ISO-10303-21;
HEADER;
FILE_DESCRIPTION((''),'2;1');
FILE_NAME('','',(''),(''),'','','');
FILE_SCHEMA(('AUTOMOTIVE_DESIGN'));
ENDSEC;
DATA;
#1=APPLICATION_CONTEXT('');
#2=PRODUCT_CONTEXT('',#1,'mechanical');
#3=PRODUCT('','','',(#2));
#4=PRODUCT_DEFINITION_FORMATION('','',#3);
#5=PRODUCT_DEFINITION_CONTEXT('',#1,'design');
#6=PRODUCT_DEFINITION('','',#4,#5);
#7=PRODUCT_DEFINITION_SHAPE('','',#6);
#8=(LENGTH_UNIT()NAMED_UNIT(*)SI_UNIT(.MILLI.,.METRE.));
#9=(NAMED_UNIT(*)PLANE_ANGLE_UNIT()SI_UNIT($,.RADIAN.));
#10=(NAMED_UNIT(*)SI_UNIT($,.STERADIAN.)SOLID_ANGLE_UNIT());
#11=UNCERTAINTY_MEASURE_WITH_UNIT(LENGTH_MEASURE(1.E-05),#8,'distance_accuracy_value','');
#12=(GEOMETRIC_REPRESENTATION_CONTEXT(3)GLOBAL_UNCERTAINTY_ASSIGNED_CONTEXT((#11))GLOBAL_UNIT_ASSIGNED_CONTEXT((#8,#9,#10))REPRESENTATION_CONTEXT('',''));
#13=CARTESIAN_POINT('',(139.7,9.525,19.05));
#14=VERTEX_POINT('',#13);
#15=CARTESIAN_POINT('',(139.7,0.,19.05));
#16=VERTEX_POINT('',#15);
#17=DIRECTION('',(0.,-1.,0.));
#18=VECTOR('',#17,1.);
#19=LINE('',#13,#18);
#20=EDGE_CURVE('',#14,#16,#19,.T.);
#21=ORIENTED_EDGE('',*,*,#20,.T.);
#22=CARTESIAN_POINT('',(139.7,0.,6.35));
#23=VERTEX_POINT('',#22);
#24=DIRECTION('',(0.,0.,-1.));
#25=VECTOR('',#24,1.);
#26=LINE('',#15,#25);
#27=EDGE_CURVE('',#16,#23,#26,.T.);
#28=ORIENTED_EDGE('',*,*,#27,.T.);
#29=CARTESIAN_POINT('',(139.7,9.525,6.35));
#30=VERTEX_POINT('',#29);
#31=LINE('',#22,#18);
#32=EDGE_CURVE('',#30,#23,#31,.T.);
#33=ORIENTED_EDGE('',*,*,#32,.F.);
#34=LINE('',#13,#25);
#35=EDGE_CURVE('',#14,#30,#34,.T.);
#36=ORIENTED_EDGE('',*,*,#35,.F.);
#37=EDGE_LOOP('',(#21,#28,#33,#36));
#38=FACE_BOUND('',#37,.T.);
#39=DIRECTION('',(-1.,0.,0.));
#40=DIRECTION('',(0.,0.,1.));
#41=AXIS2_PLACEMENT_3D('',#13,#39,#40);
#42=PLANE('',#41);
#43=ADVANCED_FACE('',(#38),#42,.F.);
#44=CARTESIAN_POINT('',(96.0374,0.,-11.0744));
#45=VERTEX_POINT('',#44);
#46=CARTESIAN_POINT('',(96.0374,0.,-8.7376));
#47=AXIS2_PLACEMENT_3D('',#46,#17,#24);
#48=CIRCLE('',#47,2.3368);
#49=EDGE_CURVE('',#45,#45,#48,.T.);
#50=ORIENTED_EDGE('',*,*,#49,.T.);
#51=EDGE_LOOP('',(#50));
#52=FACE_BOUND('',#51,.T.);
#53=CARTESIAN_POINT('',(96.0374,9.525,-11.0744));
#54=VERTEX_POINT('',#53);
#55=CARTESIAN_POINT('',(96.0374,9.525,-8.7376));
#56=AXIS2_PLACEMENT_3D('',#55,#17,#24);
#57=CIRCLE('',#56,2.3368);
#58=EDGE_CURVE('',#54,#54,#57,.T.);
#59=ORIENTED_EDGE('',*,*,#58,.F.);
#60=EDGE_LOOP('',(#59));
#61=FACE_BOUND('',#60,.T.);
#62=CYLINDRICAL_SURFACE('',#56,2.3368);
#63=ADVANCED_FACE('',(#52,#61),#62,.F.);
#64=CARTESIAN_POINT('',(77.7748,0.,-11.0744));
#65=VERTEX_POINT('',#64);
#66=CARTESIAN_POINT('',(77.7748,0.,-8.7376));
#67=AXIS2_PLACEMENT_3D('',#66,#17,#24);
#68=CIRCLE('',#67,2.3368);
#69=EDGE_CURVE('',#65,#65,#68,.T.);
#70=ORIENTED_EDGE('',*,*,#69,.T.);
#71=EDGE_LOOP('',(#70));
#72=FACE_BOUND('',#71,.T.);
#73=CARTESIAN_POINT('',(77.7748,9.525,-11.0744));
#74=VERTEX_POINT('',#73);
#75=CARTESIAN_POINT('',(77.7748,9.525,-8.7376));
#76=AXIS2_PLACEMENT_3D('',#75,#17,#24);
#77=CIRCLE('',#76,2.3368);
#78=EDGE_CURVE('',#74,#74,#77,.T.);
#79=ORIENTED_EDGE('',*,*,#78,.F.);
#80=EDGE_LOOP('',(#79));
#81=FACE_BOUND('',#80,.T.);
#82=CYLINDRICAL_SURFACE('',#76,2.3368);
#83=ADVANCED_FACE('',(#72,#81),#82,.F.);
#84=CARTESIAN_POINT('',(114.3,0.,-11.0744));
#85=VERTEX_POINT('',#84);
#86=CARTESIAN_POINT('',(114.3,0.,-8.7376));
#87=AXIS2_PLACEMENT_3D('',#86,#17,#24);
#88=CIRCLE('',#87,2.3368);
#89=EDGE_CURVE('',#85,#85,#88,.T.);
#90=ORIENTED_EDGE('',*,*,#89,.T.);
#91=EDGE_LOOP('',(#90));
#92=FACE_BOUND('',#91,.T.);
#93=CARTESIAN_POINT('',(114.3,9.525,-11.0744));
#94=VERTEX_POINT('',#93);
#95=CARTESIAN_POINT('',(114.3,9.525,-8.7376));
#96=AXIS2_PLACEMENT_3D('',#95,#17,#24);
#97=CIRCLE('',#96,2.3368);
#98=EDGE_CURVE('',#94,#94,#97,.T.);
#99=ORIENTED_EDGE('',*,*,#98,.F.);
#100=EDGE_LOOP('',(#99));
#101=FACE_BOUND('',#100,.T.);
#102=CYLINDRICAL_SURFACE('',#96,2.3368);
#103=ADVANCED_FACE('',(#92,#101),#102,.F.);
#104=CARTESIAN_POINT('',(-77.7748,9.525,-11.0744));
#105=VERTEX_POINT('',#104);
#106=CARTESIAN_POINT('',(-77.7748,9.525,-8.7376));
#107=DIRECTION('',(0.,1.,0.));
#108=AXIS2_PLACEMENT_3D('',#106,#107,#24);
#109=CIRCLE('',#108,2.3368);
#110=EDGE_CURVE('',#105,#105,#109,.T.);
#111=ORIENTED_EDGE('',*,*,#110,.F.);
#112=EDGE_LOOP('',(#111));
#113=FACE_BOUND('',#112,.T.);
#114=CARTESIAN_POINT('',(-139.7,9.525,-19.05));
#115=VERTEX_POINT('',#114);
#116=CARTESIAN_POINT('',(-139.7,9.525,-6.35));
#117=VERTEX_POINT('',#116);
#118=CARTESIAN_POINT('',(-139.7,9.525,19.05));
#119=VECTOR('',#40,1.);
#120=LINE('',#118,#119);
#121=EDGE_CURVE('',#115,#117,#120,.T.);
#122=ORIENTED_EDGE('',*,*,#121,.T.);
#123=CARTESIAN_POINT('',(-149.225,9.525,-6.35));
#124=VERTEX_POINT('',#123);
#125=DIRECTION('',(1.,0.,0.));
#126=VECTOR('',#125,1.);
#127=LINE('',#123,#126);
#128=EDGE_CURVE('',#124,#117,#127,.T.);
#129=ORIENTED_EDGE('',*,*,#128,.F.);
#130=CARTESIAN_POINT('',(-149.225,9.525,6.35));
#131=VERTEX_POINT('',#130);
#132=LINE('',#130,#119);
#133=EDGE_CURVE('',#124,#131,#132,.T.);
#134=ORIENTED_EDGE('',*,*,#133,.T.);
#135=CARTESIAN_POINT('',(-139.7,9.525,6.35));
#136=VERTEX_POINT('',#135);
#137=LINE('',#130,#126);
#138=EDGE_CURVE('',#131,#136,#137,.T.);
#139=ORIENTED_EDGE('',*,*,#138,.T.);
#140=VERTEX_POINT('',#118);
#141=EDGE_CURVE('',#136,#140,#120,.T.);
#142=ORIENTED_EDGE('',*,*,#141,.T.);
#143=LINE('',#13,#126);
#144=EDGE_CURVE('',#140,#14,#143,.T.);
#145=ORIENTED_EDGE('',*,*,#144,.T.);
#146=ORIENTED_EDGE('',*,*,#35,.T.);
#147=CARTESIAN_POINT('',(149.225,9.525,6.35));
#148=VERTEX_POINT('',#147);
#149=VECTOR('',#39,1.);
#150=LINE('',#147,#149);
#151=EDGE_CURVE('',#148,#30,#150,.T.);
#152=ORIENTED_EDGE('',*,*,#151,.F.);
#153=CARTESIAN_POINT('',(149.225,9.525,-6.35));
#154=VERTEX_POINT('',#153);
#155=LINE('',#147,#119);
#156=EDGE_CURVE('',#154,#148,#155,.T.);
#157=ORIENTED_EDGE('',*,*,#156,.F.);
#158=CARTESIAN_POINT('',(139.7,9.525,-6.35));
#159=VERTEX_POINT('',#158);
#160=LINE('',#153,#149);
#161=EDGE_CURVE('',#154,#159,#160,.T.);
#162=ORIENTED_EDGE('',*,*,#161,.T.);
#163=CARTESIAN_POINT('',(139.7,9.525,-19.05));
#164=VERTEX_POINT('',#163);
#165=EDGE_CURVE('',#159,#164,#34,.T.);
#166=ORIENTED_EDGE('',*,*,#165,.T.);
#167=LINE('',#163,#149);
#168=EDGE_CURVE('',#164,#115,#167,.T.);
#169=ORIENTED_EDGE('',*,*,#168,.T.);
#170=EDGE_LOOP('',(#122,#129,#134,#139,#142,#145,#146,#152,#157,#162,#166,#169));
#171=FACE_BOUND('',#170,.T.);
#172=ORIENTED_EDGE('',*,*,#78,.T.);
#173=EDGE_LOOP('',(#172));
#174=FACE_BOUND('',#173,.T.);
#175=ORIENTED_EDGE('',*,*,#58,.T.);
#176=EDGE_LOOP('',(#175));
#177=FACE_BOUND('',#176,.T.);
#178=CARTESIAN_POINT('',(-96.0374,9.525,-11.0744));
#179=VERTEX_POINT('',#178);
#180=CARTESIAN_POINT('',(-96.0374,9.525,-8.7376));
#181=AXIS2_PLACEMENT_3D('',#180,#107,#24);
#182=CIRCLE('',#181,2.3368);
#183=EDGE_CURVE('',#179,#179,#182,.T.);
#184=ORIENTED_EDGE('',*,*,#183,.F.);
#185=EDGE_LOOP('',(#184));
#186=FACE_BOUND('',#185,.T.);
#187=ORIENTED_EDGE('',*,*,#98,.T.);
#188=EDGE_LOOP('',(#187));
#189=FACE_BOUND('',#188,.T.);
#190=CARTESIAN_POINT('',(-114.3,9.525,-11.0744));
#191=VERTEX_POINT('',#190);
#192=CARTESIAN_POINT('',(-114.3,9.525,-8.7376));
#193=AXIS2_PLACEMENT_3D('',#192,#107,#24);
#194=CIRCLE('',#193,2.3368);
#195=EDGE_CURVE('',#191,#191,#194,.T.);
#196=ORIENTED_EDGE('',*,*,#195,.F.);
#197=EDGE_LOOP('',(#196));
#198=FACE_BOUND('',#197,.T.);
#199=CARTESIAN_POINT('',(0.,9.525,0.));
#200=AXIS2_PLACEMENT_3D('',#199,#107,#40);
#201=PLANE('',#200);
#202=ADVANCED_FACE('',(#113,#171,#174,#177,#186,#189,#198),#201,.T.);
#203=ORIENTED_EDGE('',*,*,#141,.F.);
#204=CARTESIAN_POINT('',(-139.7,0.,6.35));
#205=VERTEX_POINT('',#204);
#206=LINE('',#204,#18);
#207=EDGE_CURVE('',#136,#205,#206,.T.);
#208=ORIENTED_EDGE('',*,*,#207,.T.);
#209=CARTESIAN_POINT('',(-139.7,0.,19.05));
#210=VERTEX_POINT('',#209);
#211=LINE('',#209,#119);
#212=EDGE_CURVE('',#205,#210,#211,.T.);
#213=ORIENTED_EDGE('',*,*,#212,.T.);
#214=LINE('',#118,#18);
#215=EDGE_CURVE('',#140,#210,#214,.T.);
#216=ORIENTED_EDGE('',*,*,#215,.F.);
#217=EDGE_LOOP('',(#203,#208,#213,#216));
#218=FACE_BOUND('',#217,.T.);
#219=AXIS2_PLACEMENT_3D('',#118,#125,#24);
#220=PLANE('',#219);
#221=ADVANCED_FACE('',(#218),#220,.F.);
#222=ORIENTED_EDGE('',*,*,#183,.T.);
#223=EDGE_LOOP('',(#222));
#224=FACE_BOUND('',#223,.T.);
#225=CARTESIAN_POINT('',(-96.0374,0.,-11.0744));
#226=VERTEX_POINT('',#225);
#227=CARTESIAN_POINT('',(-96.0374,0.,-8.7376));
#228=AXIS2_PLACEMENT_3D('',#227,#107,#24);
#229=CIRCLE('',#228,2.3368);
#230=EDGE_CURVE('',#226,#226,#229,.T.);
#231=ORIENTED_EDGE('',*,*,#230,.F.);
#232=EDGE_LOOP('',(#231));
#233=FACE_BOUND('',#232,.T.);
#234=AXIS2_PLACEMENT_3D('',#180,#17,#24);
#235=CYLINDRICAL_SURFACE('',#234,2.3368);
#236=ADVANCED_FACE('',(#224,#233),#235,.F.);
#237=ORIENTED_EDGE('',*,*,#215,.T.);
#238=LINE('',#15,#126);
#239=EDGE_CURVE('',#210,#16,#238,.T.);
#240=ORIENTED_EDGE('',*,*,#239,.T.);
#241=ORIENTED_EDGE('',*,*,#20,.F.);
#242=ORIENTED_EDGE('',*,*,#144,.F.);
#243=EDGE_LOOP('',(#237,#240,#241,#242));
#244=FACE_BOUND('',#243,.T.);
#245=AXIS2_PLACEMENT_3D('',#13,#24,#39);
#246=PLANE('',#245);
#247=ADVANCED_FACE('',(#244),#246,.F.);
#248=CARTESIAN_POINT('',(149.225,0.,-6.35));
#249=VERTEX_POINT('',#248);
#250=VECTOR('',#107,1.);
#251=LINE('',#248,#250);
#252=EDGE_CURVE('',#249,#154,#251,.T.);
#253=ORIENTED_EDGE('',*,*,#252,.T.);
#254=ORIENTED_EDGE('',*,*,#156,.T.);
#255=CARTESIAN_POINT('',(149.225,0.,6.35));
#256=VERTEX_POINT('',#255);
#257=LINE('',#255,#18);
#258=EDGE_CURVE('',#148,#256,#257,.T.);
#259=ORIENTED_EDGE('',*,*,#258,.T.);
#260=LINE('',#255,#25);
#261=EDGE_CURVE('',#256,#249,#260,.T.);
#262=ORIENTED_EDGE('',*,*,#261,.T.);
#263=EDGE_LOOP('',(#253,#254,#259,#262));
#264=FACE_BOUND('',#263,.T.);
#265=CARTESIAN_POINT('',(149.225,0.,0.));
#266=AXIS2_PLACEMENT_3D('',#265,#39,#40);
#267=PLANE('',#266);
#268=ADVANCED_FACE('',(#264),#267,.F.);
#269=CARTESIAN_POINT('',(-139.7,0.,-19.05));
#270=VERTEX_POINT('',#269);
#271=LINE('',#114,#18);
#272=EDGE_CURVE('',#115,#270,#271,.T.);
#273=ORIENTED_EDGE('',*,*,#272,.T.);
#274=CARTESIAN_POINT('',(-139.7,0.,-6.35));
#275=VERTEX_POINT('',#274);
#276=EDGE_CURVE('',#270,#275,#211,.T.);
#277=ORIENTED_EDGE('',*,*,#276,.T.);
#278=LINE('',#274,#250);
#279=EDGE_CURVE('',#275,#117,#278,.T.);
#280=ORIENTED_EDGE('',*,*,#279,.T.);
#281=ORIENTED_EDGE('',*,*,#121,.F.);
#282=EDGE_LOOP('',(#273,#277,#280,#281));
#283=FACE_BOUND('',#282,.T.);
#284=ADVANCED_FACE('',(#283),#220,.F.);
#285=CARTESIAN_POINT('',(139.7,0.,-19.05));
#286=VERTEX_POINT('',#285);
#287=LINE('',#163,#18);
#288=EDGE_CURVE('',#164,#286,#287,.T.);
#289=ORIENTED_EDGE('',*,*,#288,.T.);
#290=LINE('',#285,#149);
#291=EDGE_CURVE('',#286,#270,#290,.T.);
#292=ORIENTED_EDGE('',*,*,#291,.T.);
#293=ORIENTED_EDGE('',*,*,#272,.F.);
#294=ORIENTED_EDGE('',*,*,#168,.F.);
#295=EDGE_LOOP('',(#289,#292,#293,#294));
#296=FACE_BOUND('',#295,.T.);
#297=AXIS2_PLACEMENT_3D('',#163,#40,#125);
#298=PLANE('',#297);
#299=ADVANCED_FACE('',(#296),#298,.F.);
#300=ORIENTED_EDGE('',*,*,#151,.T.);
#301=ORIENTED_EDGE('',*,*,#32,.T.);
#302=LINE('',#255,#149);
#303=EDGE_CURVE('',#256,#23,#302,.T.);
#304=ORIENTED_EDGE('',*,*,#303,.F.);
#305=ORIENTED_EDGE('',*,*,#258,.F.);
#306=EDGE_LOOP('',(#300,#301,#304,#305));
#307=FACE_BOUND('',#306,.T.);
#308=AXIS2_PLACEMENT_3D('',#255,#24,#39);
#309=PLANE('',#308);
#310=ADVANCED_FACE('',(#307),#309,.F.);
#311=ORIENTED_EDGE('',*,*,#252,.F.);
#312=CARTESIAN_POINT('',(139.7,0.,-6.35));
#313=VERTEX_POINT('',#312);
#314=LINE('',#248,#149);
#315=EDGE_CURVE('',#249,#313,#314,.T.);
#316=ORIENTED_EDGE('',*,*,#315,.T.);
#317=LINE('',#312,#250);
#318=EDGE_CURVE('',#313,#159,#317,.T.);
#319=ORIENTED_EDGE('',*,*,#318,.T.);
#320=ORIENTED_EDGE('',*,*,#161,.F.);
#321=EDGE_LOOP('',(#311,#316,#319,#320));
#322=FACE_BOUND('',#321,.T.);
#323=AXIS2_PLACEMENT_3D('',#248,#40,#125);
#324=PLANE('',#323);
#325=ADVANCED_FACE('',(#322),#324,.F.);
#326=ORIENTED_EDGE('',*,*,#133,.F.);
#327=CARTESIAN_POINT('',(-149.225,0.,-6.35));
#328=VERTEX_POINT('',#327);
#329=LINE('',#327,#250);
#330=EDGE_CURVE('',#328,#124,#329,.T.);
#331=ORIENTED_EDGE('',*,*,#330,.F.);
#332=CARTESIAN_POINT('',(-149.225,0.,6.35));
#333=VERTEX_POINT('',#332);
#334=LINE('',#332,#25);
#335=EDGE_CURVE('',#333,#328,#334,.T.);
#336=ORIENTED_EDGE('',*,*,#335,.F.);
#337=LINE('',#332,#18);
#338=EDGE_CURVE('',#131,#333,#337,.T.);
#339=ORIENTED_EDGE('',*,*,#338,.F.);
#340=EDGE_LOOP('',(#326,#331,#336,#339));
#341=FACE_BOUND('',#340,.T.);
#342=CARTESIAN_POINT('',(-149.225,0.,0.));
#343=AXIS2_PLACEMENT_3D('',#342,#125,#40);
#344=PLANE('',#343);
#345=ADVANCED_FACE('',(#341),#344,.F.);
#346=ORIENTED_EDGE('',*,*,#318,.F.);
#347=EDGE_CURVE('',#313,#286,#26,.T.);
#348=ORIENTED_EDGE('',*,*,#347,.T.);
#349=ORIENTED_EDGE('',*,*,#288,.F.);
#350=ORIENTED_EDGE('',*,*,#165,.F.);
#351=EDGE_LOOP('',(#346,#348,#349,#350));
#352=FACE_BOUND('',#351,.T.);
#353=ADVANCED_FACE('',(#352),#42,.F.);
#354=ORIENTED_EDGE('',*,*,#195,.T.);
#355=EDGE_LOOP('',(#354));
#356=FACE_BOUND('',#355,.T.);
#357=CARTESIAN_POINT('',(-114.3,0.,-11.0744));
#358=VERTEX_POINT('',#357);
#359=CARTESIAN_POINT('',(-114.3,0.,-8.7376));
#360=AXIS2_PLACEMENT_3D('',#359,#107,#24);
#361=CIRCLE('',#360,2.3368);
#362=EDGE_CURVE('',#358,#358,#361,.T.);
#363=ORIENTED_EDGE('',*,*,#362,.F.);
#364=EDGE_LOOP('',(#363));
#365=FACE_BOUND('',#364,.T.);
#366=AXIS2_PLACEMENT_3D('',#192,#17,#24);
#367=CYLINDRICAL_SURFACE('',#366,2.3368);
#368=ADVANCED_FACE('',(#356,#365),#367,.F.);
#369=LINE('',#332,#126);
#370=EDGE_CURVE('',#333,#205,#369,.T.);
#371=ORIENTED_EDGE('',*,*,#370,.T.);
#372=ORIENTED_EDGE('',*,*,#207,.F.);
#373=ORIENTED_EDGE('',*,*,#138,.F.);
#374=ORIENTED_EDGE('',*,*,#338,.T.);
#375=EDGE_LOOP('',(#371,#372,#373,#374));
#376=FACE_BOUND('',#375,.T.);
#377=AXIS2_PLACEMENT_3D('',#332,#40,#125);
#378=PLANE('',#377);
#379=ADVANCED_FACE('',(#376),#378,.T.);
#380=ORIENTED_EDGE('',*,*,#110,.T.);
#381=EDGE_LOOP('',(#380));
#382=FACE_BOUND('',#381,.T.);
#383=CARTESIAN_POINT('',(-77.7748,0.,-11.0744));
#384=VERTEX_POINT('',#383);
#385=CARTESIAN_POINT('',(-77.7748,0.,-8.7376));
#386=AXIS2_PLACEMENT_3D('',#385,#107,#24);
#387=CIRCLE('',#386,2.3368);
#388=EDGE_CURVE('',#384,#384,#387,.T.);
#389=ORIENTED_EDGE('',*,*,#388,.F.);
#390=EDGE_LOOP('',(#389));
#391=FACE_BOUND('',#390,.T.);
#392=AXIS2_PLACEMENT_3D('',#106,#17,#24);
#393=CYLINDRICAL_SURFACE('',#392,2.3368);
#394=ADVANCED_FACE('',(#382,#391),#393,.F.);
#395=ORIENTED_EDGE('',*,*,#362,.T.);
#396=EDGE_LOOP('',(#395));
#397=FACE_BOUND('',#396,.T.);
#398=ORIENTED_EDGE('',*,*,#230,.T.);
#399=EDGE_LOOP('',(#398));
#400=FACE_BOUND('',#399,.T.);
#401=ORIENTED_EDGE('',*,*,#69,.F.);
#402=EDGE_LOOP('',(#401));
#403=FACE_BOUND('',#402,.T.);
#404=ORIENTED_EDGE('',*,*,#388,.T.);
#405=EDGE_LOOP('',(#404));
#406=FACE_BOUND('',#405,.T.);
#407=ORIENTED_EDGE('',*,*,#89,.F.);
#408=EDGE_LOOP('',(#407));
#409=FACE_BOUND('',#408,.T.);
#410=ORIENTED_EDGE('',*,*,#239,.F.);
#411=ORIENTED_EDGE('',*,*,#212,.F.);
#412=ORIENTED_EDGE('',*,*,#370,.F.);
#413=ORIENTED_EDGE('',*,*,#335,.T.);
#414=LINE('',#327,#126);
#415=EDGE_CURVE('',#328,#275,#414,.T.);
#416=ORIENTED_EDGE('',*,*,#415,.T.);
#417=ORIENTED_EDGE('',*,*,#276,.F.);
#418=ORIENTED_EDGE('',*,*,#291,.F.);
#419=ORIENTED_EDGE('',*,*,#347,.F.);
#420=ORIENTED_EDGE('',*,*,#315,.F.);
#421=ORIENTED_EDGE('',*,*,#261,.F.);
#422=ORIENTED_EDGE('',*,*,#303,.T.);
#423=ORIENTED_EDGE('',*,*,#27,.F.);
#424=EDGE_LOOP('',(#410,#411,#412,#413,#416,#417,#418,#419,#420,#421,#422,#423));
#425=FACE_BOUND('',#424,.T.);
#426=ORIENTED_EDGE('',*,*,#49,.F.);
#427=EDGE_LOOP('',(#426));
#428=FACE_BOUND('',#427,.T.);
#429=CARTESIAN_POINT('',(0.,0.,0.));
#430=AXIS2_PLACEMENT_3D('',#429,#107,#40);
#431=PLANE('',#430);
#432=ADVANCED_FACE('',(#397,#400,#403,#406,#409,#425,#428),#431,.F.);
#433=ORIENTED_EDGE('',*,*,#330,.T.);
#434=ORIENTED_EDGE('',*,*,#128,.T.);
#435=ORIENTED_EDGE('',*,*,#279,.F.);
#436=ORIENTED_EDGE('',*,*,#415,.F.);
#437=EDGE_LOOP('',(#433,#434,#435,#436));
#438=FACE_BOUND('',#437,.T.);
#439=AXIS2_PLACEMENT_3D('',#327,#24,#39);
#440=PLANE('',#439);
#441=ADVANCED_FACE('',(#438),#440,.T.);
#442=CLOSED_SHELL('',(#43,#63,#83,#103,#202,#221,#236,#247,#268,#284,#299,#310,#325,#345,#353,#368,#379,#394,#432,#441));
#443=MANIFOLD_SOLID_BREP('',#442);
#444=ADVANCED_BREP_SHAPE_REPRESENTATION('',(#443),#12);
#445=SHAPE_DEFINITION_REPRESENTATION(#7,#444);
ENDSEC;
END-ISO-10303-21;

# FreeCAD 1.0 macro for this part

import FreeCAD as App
import Part
import Sketcher
Q = App.Units.Quantity

doc = App.newDocument("Part")
params = doc.addObject("Spreadsheet::Sheet", "Params")
for row, (alias, value) in enumerate([
    ("sketch1_width", "11 in"),
    ("sketch1_height", "1.5 in"),
    ("pad1_length", "0.375 in"),
    ("sketch2_height", "0.5 in"),
    ("sketch2_width", "0.375 in"),
    ("pad2_length", "0.375 in"),
    ("sketch3_diameter", "0.184 in"),
], start=1):
    params.set(f"A{row}", alias)
    params.set(f"B{row}", "=" + value)
    params.setAlias(f"B{row}", alias)

body = doc.addObject("PartDesign::Body", "Body")

# Sketch on XZ plane
sketch1 = doc.addObject("Sketcher::SketchObject", "Sketch")
body.addObject(sketch1)
sketch1.AttachmentSupport = (doc.XZ_Plane, [""])
sketch1.MapMode = "FlatFace"
sketch1.addGeometry(Part.LineSegment(App.Vector(-140, -19, 0), App.Vector(-140, 19, 0)), False)
sketch1.addGeometry(Part.LineSegment(App.Vector(-140, 19, 0), App.Vector(140, 19, 0)), False)
sketch1.addGeometry(Part.LineSegment(App.Vector(140, 19, 0), App.Vector(140, -19, 0)), False)
sketch1.addGeometry(Part.LineSegment(App.Vector(140, -19, 0), App.Vector(-140, -19, 0)), False)
sketch1.addConstraint(Sketcher.Constraint("Coincident", 0, 2, 1, 1))
sketch1.addConstraint(Sketcher.Constraint("Coincident", 1, 2, 2, 1))
sketch1.addConstraint(Sketcher.Constraint("Coincident", 2, 2, 3, 1))
sketch1.addConstraint(Sketcher.Constraint("Coincident", 3, 2, 0, 1))
sketch1.addConstraint(Sketcher.Constraint("Vertical", 0))
sketch1.addConstraint(Sketcher.Constraint("Horizontal", 1))
sketch1.addConstraint(Sketcher.Constraint("Vertical", 2))
sketch1.addConstraint(Sketcher.Constraint("Horizontal", 3))
sketch1.addConstraint(Sketcher.Constraint("Symmetric", 0, 2, 2, 2, -1, 1))
sketch1.addConstraint(Sketcher.Constraint("DistanceX", 1, 1, 1, 2, Q("11 in")))
sketch1.addConstraint(Sketcher.Constraint("DistanceY", 0, 1, 0, 2, Q("1.5 in")))
sketch1.setExpression("Constraints[9]", "Params.sketch1_width")
sketch1.setExpression("Constraints[10]", "Params.sketch1_height")
pad1 = doc.addObject("PartDesign::Pad", "Pad")
body.addObject(pad1)
pad1.Profile = sketch1
pad1.setExpression("Length", "Params.pad1_length")
pad1.Reversed = True

# Sketch on YZ plane
sketch2 = doc.addObject("Sketcher::SketchObject", "Sketch001")
body.addObject(sketch2)
sketch2.AttachmentSupport = (doc.YZ_Plane, [""])
sketch2.MapMode = "FlatFace"
sketch2.AttachmentOffset = App.Placement(App.Vector(0, 0, 5.5 * 25.4), App.Rotation())
sketch2.addGeometry(Part.LineSegment(App.Vector(10, 6, 0), App.Vector(0, 6, 0)), False)
sketch2.addGeometry(Part.LineSegment(App.Vector(0, 6, 0), App.Vector(0, -6, 0)), False)
sketch2.addGeometry(Part.LineSegment(App.Vector(0, -6, 0), App.Vector(10, -6, 0)), False)
sketch2.addGeometry(Part.LineSegment(App.Vector(10, -6, 0), App.Vector(10, 6, 0)), False)
sketch2.addConstraint(Sketcher.Constraint("Coincident", 0, 2, 1, 1))
sketch2.addConstraint(Sketcher.Constraint("Coincident", 1, 2, 2, 1))
sketch2.addConstraint(Sketcher.Constraint("Coincident", 2, 2, 3, 1))
sketch2.addConstraint(Sketcher.Constraint("Coincident", 3, 2, 0, 1))
sketch2.addConstraint(Sketcher.Constraint("Horizontal", 0))
sketch2.addConstraint(Sketcher.Constraint("Vertical", 1))
sketch2.addConstraint(Sketcher.Constraint("Horizontal", 2))
sketch2.addConstraint(Sketcher.Constraint("Vertical", 3))
sketch2.addConstraint(Sketcher.Constraint("Symmetric", 0, 2, 1, 2, -1, 1))
sketch2.addConstraint(Sketcher.Constraint("DistanceY", 1, 2, 1, 1, Q("0.5 in")))
sketch2.addConstraint(Sketcher.Constraint("DistanceX", 0, 2, 0, 1, Q("0.375 in")))
sketch2.setExpression("Constraints[9]", "Params.sketch2_height")
sketch2.setExpression("Constraints[10]", "Params.sketch2_width")
pad2 = doc.addObject("PartDesign::Pad", "Pad001")
body.addObject(pad2)
pad2.Profile = sketch2
pad2.setExpression("Length", "Params.pad2_length")
doc.recompute()

mirrored = doc.addObject("PartDesign::Mirrored", "Mirrored")
body.addObject(mirrored)
mirrored.Originals = [pad2]
mirrored.MirrorPlane = (doc.YZ_Plane, [""])
body.Tip = mirrored

# Sketch on XZ plane
sketch3 = doc.addObject("Sketcher::SketchObject", "Sketch002")
body.addObject(sketch3)
sketch3.AttachmentSupport = (doc.XZ_Plane, [""])
sketch3.MapMode = "FlatFace"
sketch3.addGeometry(Part.Circle(App.Vector(114.3, -8.7, 0), App.Vector(0, 0, 1), 2.3), False)
sketch3.addGeometry(Part.Circle(App.Vector(77.8, -8.7, 0), App.Vector(0, 0, 1), 2.3), False)
sketch3.addGeometry(Part.Circle(App.Vector(96, -8.7, 0), App.Vector(0, 0, 1), 2.3), False)
sketch3.addConstraint(Sketcher.Constraint("Equal", 0, 1))
sketch3.addConstraint(Sketcher.Constraint("Equal", 1, 2))
sketch3.addConstraint(Sketcher.Constraint("Horizontal", 0, 3, 1, 3))
sketch3.addConstraint(Sketcher.Constraint("Horizontal", 1, 3, 2, 3))
sketch3.addConstraint(Sketcher.Constraint("Diameter", 0, Q("0.184 in")))
sketch3.addConstraint(Sketcher.Constraint("DistanceX", -1, 1, 0, 3, Q("4.5 in")))
sketch3.addConstraint(Sketcher.Constraint("DistanceY", 0, 3, -1, 1, Q("0.344 in")))
sketch3.addConstraint(Sketcher.Constraint("DistanceX", -1, 1, 1, 3, Q("3.062 in")))
sketch3.addConstraint(Sketcher.Constraint("DistanceX", -1, 1, 2, 3, Q("3.781 in")))
sketch3.setExpression("Constraints[4]", "Params.sketch3_diameter")
pocket1 = doc.addObject("PartDesign::Pocket", "Pocket")
body.addObject(pocket1)
pocket1.Profile = sketch3
pocket1.Type = "ThroughAll"
doc.recompute()

mirrored2 = doc.addObject("PartDesign::Mirrored", "Mirrored001")
body.addObject(mirrored2)
mirrored2.Originals = [pocket1]
mirrored2.MirrorPlane = (doc.YZ_Plane, [""])
body.Tip = mirrored2

doc.recompute()
